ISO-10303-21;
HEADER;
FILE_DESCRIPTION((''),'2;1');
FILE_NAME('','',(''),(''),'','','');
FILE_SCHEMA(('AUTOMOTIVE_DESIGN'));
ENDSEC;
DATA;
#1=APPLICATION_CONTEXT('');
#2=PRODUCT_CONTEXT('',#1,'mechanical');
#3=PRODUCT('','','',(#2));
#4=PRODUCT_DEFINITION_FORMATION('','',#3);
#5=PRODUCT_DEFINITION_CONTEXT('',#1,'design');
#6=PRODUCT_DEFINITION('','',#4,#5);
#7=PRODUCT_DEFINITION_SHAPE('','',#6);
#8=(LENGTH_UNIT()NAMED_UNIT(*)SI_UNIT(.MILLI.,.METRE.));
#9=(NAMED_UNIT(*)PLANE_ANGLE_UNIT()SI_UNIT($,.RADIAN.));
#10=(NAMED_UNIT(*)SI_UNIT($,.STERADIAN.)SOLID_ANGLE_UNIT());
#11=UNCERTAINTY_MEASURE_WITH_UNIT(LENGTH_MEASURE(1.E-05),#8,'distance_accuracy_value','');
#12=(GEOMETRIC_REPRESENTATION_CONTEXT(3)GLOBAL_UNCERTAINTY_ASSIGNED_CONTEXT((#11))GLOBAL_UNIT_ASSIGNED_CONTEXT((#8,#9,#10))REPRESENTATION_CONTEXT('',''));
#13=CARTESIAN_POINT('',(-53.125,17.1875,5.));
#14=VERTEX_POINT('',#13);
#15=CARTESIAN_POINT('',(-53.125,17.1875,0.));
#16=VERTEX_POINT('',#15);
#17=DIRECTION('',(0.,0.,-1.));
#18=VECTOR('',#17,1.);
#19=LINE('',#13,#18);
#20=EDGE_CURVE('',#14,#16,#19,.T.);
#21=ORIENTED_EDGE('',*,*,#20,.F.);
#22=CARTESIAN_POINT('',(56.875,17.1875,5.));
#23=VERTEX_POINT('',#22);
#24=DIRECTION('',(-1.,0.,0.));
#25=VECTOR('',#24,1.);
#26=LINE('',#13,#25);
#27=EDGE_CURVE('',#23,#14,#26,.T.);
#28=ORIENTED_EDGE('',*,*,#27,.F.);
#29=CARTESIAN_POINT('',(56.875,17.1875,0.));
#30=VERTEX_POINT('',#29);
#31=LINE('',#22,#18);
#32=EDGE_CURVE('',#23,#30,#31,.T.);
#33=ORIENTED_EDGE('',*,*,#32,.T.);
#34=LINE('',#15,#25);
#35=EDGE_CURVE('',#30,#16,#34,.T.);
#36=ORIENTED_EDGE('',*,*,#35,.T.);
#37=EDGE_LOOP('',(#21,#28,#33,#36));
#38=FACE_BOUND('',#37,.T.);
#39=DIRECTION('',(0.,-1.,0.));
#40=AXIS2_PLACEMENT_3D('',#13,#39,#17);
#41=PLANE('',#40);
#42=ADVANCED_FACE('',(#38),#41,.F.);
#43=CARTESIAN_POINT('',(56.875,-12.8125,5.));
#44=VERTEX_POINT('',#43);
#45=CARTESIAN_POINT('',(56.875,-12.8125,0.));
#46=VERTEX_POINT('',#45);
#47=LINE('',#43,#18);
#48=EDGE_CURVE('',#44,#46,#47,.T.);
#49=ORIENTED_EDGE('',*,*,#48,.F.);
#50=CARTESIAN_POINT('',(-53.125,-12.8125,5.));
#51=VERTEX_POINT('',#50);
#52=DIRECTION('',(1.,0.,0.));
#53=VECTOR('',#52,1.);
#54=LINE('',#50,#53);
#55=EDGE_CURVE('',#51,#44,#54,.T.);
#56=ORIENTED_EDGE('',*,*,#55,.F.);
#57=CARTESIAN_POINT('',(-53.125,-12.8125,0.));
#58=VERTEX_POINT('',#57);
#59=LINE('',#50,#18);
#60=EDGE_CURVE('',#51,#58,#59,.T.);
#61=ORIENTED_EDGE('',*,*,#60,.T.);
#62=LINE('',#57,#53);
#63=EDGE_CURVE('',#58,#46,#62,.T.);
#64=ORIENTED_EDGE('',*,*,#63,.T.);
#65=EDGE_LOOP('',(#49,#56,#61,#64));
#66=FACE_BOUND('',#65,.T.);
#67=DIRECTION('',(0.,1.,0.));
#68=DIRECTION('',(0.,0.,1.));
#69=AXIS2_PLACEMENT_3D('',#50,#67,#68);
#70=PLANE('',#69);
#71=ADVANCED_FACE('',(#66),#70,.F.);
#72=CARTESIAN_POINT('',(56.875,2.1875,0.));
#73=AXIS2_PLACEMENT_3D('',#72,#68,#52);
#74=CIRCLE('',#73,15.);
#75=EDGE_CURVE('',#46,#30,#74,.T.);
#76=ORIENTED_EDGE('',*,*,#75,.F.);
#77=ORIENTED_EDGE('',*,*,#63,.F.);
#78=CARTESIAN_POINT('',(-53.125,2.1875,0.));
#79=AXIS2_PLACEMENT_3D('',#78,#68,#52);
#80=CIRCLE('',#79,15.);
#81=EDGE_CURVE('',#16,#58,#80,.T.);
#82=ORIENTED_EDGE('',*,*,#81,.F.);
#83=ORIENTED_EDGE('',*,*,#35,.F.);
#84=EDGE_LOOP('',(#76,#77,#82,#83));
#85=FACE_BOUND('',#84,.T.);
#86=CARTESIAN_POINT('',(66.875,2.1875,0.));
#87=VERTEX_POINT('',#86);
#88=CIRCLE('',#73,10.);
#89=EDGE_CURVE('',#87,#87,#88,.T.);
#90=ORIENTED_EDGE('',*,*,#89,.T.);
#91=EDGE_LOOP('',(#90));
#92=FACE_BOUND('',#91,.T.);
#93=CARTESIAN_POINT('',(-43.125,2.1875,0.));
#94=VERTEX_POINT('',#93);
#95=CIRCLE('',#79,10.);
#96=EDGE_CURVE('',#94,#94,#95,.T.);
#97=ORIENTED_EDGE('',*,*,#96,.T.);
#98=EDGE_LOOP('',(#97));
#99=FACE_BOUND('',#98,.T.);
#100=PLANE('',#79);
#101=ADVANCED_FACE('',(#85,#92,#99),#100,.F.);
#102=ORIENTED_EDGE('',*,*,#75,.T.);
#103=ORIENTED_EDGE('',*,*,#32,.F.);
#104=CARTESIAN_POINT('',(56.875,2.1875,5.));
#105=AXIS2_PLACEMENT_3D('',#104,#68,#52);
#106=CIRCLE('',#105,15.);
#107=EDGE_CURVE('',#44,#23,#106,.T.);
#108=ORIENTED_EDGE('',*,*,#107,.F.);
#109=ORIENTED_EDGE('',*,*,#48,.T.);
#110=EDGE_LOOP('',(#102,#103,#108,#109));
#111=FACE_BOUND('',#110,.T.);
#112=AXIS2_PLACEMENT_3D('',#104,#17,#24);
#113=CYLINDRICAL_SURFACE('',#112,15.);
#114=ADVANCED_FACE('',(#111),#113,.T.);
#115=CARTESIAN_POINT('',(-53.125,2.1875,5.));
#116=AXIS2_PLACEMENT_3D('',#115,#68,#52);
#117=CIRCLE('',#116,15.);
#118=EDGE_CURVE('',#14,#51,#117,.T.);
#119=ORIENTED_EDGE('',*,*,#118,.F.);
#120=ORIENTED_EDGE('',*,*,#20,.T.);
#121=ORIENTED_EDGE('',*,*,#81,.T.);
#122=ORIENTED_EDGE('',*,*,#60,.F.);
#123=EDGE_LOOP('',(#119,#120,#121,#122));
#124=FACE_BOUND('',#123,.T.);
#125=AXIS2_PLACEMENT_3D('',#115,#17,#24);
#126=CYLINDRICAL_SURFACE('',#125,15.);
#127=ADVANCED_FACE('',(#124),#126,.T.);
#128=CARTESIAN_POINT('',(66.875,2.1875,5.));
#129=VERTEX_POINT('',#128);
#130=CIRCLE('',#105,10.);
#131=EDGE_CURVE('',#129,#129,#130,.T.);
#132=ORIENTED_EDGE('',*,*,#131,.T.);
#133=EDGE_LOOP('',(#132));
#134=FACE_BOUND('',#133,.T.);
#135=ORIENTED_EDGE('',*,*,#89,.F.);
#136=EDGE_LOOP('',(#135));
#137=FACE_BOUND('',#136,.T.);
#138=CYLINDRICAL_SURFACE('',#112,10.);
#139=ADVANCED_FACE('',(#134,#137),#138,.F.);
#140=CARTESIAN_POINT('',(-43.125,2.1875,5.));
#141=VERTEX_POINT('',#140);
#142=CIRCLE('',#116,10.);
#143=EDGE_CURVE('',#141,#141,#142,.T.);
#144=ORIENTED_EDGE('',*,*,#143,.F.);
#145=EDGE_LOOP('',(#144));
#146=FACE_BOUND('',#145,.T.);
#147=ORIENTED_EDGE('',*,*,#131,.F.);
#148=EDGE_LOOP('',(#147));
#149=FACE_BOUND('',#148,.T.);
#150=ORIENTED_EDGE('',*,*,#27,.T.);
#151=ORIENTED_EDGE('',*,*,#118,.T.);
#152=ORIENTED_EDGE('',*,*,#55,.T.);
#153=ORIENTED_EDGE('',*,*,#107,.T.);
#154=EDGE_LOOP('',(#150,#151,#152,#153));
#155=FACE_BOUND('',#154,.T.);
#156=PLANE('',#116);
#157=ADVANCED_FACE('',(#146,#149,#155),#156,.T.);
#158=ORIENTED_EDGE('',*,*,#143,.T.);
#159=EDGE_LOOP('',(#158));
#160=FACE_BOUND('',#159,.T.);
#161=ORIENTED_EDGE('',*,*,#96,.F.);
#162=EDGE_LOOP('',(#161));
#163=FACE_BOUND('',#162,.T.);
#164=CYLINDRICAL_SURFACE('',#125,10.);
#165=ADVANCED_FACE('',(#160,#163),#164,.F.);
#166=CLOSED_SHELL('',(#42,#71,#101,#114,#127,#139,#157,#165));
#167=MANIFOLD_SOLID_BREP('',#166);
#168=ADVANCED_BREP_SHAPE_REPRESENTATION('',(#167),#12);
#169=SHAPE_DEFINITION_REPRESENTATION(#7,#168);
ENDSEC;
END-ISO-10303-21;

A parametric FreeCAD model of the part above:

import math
import FreeCAD as App
import Part
import Sketcher

V = App.Vector
Q = App.Units.Quantity

doc = App.newDocument("Part")
body = doc.addObject("PartDesign::Body", "Body")

sketch1 = body.newObject("Sketcher::SketchObject", "Sketch")
sketch1.AttachmentSupport = (doc.getObject("XY_Plane"), [""])
sketch1.MapMode = "FlatFace"
sketch1.addGeometry(Part.LineSegment(V(57, 17, 0), V(-53, 17, 0)), False)
sketch1.addGeometry(Part.ArcOfCircle(Part.Circle(V(-53, 2, 0), V(0, 0, 1), 15), math.radians(90), math.radians(270)), False)
sketch1.addGeometry(Part.LineSegment(V(-53, -13, 0), V(57, -13, 0)), False)
sketch1.addGeometry(Part.ArcOfCircle(Part.Circle(V(57, 2, 0), V(0, 0, 1), 15), math.radians(-90), math.radians(90)), False)
sketch1.addGeometry(Part.Circle(V(57, 2, 0), V(0, 0, 1), 10), False)
sketch1.addGeometry(Part.Circle(V(-53, 2, 0), V(0, 0, 1), 10), False)
sketch1.addConstraint(Sketcher.Constraint("Tangent", 0, 2, 1, 1))
sketch1.addConstraint(Sketcher.Constraint("Tangent", 1, 2, 2, 1))
sketch1.addConstraint(Sketcher.Constraint("Tangent", 2, 2, 3, 1))
sketch1.addConstraint(Sketcher.Constraint("Tangent", 3, 2, 0, 1))
sketch1.addConstraint(Sketcher.Constraint("Horizontal", 0))
sketch1.addConstraint(Sketcher.Constraint("Horizontal", 2))
sketch1.addConstraint(Sketcher.Constraint("Coincident", 4, 3, 3, 3))
sketch1.addConstraint(Sketcher.Constraint("Coincident", 5, 3, 1, 3))
sketch1.addConstraint(Sketcher.Constraint("Equal", 4, 5))
sketch1.addConstraint(Sketcher.Constraint("Diameter", 4, Q("20 mm")))
sketch1.addConstraint(Sketcher.Constraint("Radius", 1, Q("15 mm")))
sketch1.addConstraint(Sketcher.Constraint("DistanceX", 0, 2, 0, 1, Q("110 mm")))
sketch1.addConstraint(Sketcher.Constraint("DistanceX", 1, 3, -1, 1, Q("53.125 mm")))
sketch1.addConstraint(Sketcher.Constraint("DistanceY", -1, 1, 1, 3, Q("2.1875 mm")))
pad1 = body.newObject("PartDesign::Pad", "Pad")
pad1.Profile = sketch1
pad1.Length = 5

doc.recompute()
